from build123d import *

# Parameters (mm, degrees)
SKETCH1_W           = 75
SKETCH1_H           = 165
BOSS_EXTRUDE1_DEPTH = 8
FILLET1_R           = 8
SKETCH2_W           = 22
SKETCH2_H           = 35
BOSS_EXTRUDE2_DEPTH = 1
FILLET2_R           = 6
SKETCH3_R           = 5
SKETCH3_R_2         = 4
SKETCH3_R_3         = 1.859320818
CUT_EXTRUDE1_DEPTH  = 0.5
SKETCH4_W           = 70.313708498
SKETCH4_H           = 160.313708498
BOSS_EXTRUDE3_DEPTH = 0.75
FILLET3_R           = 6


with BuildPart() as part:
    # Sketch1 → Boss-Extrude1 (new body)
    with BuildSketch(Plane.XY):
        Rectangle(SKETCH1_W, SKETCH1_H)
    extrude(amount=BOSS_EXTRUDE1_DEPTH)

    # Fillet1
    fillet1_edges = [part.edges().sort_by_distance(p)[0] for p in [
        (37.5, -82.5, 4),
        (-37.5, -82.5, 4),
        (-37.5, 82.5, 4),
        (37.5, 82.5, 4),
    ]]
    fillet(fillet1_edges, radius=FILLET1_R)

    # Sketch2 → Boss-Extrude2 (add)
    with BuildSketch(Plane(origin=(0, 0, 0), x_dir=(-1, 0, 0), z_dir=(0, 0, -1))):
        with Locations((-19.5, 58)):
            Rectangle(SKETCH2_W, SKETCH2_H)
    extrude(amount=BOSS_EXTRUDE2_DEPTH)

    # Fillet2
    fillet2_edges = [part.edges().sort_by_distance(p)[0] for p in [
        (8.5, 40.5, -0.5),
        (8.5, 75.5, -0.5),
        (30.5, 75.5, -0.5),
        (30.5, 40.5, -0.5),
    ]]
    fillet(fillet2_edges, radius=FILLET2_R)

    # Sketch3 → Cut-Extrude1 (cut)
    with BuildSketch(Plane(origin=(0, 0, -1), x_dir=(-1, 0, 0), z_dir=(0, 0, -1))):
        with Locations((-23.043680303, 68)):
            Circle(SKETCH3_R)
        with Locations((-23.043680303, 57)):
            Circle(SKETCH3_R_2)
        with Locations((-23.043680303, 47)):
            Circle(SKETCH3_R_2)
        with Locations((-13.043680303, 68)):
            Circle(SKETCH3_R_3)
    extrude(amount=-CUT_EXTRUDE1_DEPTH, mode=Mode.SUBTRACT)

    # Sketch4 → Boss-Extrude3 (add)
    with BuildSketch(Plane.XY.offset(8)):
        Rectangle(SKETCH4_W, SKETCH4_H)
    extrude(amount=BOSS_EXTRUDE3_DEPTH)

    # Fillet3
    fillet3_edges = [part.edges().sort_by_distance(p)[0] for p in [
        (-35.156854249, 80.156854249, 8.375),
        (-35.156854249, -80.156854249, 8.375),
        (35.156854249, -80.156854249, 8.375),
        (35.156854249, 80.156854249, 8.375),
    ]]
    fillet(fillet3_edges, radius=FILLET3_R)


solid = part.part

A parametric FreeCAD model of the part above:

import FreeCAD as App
import Part
import Sketcher
from FreeCAD import Vector
Q = App.Units.Quantity


def edges_at(feature, points):
    """Names of the edges that pass closest to the given points."""
    edges = feature.Shape.Edges
    near = lambda p: min(range(len(edges)), key=lambda i: edges[i].distToShape(Part.Vertex(*p))[0])
    return sorted({f"Edge{near(p) + 1}" for p in points})


def add_polygon(sketch, points):
    """Adds a closed chain of lines whose ends are joined by coincident constraints."""
    first, n = sketch.GeometryCount, len(points)
    for a, b in zip(points, points[1:] + points[:1]):
        sketch.addGeometry(Part.LineSegment(App.Vector(*a, 0), App.Vector(*b, 0)), False)
    for i in range(n):
        sketch.addConstraint(Sketcher.Constraint("Coincident", first + i, 2, first + (i + 1) % n, 1))

doc = App.newDocument("Part")
params = doc.addObject("Spreadsheet::Sheet", "Params")
for row, (alias, value) in enumerate([
    ("sketch1_width", "75 mm"),
    ("sketch1_height", "165 mm"),
    ("pad1_length", "8 mm"),
    ("fillet_radius", "8 mm"),
    ("sketch2_width", "22 mm"),
    ("sketch2_height", "35 mm"),
    ("pad2_length", "1 mm"),
    ("fillet2_radius", "6 mm"),
    ("sketch3_diameter", "10 mm"),
    ("sketch3_diameter2", "8 mm"),
    ("pocket1_length", "0.5 mm"),
    ("pad3_length", "0.75 mm"),
    ("fillet3_radius", "6 mm"),
], start=1):
    params.set(f"A{row}", alias)
    params.set(f"B{row}", "=" + value)
    params.setAlias(f"B{row}", alias)

body = doc.addObject("PartDesign::Body", "Body")

sketch1 = doc.addObject("Sketcher::SketchObject", "Sketch")
body.addObject(sketch1)
sketch1.AttachmentSupport = (doc.XY_Plane, [""])
sketch1.MapMode = "FlatFace"
add_polygon(sketch1, [(-38, 82), (-38, -82), (38, -82), (38, 82)])
sketch1.addConstraint([
    Sketcher.Constraint("Vertical", 0),
    Sketcher.Constraint("Horizontal", 1),
    Sketcher.Constraint("Vertical", 2),
    Sketcher.Constraint("Horizontal", 3),
    Sketcher.Constraint("Symmetric", 0, 2, 2, 2, -1, 1),
    Sketcher.Constraint("DistanceX", 1, 1, 1, 2, Q("75 mm")),
    Sketcher.Constraint("DistanceY", 0, 2, 0, 1, Q("165 mm")),
])
sketch1.setExpression("Constraints[9]", "Params.sketch1_width")
sketch1.setExpression("Constraints[10]", "Params.sketch1_height")
pad1 = doc.addObject("PartDesign::Pad", "Pad")
body.addObject(pad1)
pad1.Profile = sketch1
pad1.setExpression("Length", "Params.pad1_length")
doc.recompute()

fillet = doc.addObject("PartDesign::Fillet", "Fillet")
body.addObject(fillet)
fillet.Base = (pad1, edges_at(pad1, [
    (37.5, -82.5, 4),
    (-37.5, -82.5, 4),
    (-37.5, 82.5, 4),
    (37.5, 82.5, 4),
]))
fillet.setExpression("Radius", "Params.fillet_radius")

sketch2 = doc.addObject("Sketcher::SketchObject", "Sketch001")
body.addObject(sketch2)
sketch2.AttachmentSupport = (doc.XY_Plane, [""])
sketch2.MapMode = "FlatFace"
add_polygon(sketch2, [(30, 76), (30, 40), (8, 40), (8, 76)])
sketch2.addConstraint([
    Sketcher.Constraint("Vertical", 0),
    Sketcher.Constraint("Horizontal", 1),
    Sketcher.Constraint("Vertical", 2),
    Sketcher.Constraint("Horizontal", 3),
    Sketcher.Constraint("DistanceX", 1, 2, 1, 1, Q("22 mm")),
    Sketcher.Constraint("DistanceY", 0, 2, 0, 1, Q("35 mm")),
    Sketcher.Constraint("DistanceX", -1, 1, 0, 2, Q("30.5 mm")),
    Sketcher.Constraint("DistanceY", -1, 1, 0, 2, Q("40.5 mm")),
])
sketch2.setExpression("Constraints[8]", "Params.sketch2_width")
sketch2.setExpression("Constraints[9]", "Params.sketch2_height")
pad2 = doc.addObject("PartDesign::Pad", "Pad001")
body.addObject(pad2)
pad2.Profile = sketch2
pad2.setExpression("Length", "Params.pad2_length")
pad2.Reversed = True
doc.recompute()

fillet2 = doc.addObject("PartDesign::Fillet", "Fillet001")
body.addObject(fillet2)
fillet2.Base = (pad2, edges_at(pad2, [
    (8.5, 40.5, -0.5),
    (8.5, 75.5, -0.5),
    (30.5, 75.5, -0.5),
    (30.5, 40.5, -0.5),
]))
fillet2.setExpression("Radius", "Params.fillet2_radius")

sketch3 = doc.addObject("Sketcher::SketchObject", "Sketch002")
body.addObject(sketch3)
sketch3.AttachmentSupport = (doc.XY_Plane, [""])
sketch3.MapMode = "FlatFace"
sketch3.AttachmentOffset = App.Placement(Vector(0, 0, -1), App.Rotation())
sketch3.addGeometry([
    Part.Circle(Vector(23, 68, 0), Vector(0, 0, 1), 5),
    Part.Circle(Vector(23, 57, 0), Vector(0, 0, 1), 4),
    Part.Circle(Vector(23, 47, 0), Vector(0, 0, 1), 4),
    Part.Circle(Vector(13, 68, 0), Vector(0, 0, 1), 1.9),
], False)
sketch3.addConstraint([
    Sketcher.Constraint("Equal", 1, 2),
    Sketcher.Constraint("Horizontal", 0, 3, 3, 3),
    Sketcher.Constraint("Vertical", 0, 3, 1, 3),
    Sketcher.Constraint("Vertical", 1, 3, 2, 3),
    Sketcher.Constraint("Diameter", 0, Q("10 mm")),
    Sketcher.Constraint("Diameter", 1, Q("8 mm")),
    Sketcher.Constraint("DistanceY", -1, 1, 0, 3, Q("68 mm")),
    Sketcher.Constraint("DistanceY", -1, 1, 1, 3, Q("57 mm")),
    Sketcher.Constraint("DistanceY", -1, 1, 2, 3, Q("47 mm")),
    Sketcher.Constraint("DistanceX", 3, 3, 0, 3, Q("10 mm")),
    Sketcher.Constraint("Diameter", 3, Q("3.718642 mm")),
    Sketcher.Constraint("DistanceX", -1, 1, 0, 3, Q("23.04368 mm")),
])
sketch3.setExpression("Constraints[4]", "Params.sketch3_diameter")
sketch3.setExpression("Constraints[5]", "Params.sketch3_diameter2")
pocket1 = doc.addObject("PartDesign::Pocket", "Pocket")
body.addObject(pocket1)
pocket1.Profile = sketch3
pocket1.setExpression("Length", "Params.pocket1_length")
pocket1.Reversed = True

sketch4 = doc.addObject("Sketcher::SketchObject", "Sketch003")
body.addObject(sketch4)
sketch4.AttachmentSupport = (doc.XY_Plane, [""])
sketch4.MapMode = "FlatFace"
sketch4.AttachmentOffset = App.Placement(Vector(0, 0, 8), App.Rotation())
add_polygon(sketch4, [(-35, 80), (-35, -80), (35, -80), (35, 80)])
sketch4.addConstraint([
    Sketcher.Constraint("Vertical", 0),
    Sketcher.Constraint("Horizontal", 1),
    Sketcher.Constraint("Vertical", 2),
    Sketcher.Constraint("Horizontal", 3),
    Sketcher.Constraint("Symmetric", 0, 2, 2, 2, -1, 1),
    Sketcher.Constraint("DistanceX", 1, 1, 1, 2, Q("70.313708 mm")),
    Sketcher.Constraint("DistanceY", 0, 2, 0, 1, Q("160.313708 mm")),
])
pad3 = doc.addObject("PartDesign::Pad", "Pad002")
body.addObject(pad3)
pad3.Profile = sketch4
pad3.setExpression("Length", "Params.pad3_length")
doc.recompute()

fillet3 = doc.addObject("PartDesign::Fillet", "Fillet002")
body.addObject(fillet3)
fillet3.Base = (pad3, edges_at(pad3, [
    (-35.157, 80.157, 8.375),
    (-35.157, -80.157, 8.375),
    (35.157, -80.157, 8.375),
    (35.157, 80.157, 8.375),
]))
fillet3.setExpression("Radius", "Params.fillet3_radius")

doc.recompute()
